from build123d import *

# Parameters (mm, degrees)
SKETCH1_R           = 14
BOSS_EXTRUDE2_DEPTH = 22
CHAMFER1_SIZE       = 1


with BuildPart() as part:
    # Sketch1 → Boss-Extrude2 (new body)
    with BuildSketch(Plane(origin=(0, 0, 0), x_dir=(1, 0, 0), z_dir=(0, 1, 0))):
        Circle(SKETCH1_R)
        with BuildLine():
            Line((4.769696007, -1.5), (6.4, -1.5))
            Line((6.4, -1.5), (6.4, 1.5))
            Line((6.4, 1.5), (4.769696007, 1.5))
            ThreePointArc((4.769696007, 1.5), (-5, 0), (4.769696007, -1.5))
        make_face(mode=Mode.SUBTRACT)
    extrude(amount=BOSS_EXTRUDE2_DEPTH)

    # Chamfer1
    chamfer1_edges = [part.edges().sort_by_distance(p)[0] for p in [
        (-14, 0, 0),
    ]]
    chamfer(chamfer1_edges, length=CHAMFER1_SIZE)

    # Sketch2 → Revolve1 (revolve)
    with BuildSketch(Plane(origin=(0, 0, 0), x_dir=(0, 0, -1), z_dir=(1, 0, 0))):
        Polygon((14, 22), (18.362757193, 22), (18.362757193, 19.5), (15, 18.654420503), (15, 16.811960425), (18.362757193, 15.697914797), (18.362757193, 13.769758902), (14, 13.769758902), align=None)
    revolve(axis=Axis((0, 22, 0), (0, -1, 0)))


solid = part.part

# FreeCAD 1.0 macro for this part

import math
import FreeCAD as App
import Part
import Sketcher

V = App.Vector
Q = App.Units.Quantity


def edges_at(feature, points):
    """Names of the edges that pass closest to the given points."""
    edges = feature.Shape.Edges
    near = lambda p: min(range(len(edges)), key=lambda i: edges[i].distToShape(Part.Vertex(*p))[0])
    return sorted({f"Edge{near(p) + 1}" for p in points})


def add_polygon(sketch, points):
    """Adds a closed chain of lines whose ends are joined by coincident constraints."""
    first, n = sketch.GeometryCount, len(points)
    for a, b in zip(points, points[1:] + points[:1]):
        sketch.addGeometry(Part.LineSegment(App.Vector(*a, 0), App.Vector(*b, 0)), False)
    for i in range(n):
        sketch.addConstraint(Sketcher.Constraint("Coincident", first + i, 2, first + (i + 1) % n, 1))

doc = App.newDocument("Part")
params = doc.addObject("Spreadsheet::Sheet", "Params")
for row, (alias, value) in enumerate([
    ("sketch1_diameter", "28 mm"),
    ("sketch1_radius", "5 mm"),
    ("sketch1_height", "3 mm"),
    ("pad1_length", "22 mm"),
    ("chamfer_size", "1 mm"),
    ("sketch2_width", "2.5 mm"),
    ("revolution_angle", "360 deg"),
], start=1):
    params.set(f"A{row}", alias)
    params.set(f"B{row}", "=" + value)
    params.setAlias(f"B{row}", alias)

body = doc.addObject("PartDesign::Body", "Body")

# Sketch on XZ plane
sketch1 = body.newObject("Sketcher::SketchObject", "Sketch")
sketch1.AttachmentSupport = (doc.getObject("XZ_Plane"), [""])
sketch1.MapMode = "FlatFace"
sketch1.addGeometry([
    Part.Circle(V(0, 0, 0), V(0, 0, 1), 14),  # 0
    Part.LineSegment(V(6.4, 1.5, 0), V(4.769696, 1.5, 0)),  # 1
    Part.ArcOfCircle(Part.Circle(V(0, 0, 0), V(0, 0, 1), 5), math.radians(17.457603), math.radians(342.542397)),  # 2
    Part.LineSegment(V(4.769696, -1.5, 0), V(6.4, -1.5, 0)),  # 3
    Part.LineSegment(V(6.4, -1.5, 0), V(6.4, 1.5, 0)),  # 4
], False)
sketch1.addConstraint([
    Sketcher.Constraint("Coincident", 1, 2, 2, 1),
    Sketcher.Constraint("Coincident", 2, 2, 3, 1),
    Sketcher.Constraint("Coincident", 3, 2, 4, 1),
    Sketcher.Constraint("Coincident", 4, 2, 1, 1),
    Sketcher.Constraint("Horizontal", 1),
    Sketcher.Constraint("Horizontal", 3),
    Sketcher.Constraint("Vertical", 4),
    Sketcher.Constraint("Coincident", 0, 3, -1, 1),
    Sketcher.Constraint("Coincident", 2, 3, -1, 1),
    Sketcher.Constraint("Vertical", 1, 2, 2, 2),
    Sketcher.Constraint("Diameter", 0, Q("28 mm")),
    Sketcher.Constraint("Radius", 2, Q("5 mm")),
    Sketcher.Constraint("DistanceY", 4, 1, 4, 2, Q("3 mm")),
    Sketcher.Constraint("DistanceX", -1, 1, 3, 2, Q("6.4 mm")),
])
sketch1.setExpression("Constraints[10]", "Params.sketch1_diameter")
sketch1.setExpression("Constraints[11]", "Params.sketch1_radius")
sketch1.setExpression("Constraints[12]", "Params.sketch1_height")
pad1 = body.newObject("PartDesign::Pad", "Pad")
pad1.Profile = sketch1
pad1.setExpression("Length", "Params.pad1_length")
pad1.Reversed = True
doc.recompute()

chamfer = body.newObject("PartDesign::Chamfer", "Chamfer")
chamfer.Base = (pad1, edges_at(pad1, [(-14, 0, 0)]))
chamfer.setExpression("Size", "Params.chamfer_size")

# Sketch on YZ plane
sketch2 = body.newObject("Sketcher::SketchObject", "Sketch001")
sketch2.AttachmentSupport = (doc.getObject("YZ_Plane"), [""])
sketch2.MapMode = "FlatFace"
add_polygon(sketch2, [(22, -18.362757), (22, -14), (13.769759, -14), (13.769759, -18.362757), (15.697915, -18.362757), (16.81196, -15), (18.654421, -15), (19.5, -18.362757)])  # lines 0-7
sketch2.addConstraint([
    Sketcher.Constraint("Vertical", 0),
    Sketcher.Constraint("Horizontal", 1),
    Sketcher.Constraint("Vertical", 2),
    Sketcher.Constraint("Horizontal", 3),
    Sketcher.Constraint("Horizontal", 5),
    Sketcher.Constraint("Horizontal", 7),
    Sketcher.Constraint("Horizontal", 3, 2, 6, 2),
    Sketcher.Constraint("DistanceX", 7, 1, 7, 2, Q("2.5 mm")),
    Sketcher.Constraint("DistanceX", -1, 1, 0, 2, Q("22 mm")),
    Sketcher.Constraint("DistanceY", 0, 2, -1, 1, Q("14 mm")),
    Sketcher.Constraint("DistanceY", 4, 2, -1, 1, Q("15 mm")),
    Sketcher.Constraint("DistanceX", 1, 2, 1, 1, Q("8.230241 mm")),
    Sketcher.Constraint("DistanceX", 5, 1, 5, 2, Q("1.84246 mm")),
    Sketcher.Constraint("DistanceX", 1, 2, 4, 2, Q("3.042202 mm")),
    Sketcher.Constraint("Distance", 4, Q("3.54249 mm")),
    Sketcher.Constraint("Distance", 6, Q("3.46744 mm")),
])
sketch2.setExpression("Constraints[15]", "Params.sketch2_width")
revolution = body.newObject("PartDesign::Revolution", "Revolution")
revolution.Profile = sketch2
revolution.ReferenceAxis = (sketch2, ["H_Axis"])
revolution.setExpression("Angle", "Params.revolution_angle")

doc.recompute()
